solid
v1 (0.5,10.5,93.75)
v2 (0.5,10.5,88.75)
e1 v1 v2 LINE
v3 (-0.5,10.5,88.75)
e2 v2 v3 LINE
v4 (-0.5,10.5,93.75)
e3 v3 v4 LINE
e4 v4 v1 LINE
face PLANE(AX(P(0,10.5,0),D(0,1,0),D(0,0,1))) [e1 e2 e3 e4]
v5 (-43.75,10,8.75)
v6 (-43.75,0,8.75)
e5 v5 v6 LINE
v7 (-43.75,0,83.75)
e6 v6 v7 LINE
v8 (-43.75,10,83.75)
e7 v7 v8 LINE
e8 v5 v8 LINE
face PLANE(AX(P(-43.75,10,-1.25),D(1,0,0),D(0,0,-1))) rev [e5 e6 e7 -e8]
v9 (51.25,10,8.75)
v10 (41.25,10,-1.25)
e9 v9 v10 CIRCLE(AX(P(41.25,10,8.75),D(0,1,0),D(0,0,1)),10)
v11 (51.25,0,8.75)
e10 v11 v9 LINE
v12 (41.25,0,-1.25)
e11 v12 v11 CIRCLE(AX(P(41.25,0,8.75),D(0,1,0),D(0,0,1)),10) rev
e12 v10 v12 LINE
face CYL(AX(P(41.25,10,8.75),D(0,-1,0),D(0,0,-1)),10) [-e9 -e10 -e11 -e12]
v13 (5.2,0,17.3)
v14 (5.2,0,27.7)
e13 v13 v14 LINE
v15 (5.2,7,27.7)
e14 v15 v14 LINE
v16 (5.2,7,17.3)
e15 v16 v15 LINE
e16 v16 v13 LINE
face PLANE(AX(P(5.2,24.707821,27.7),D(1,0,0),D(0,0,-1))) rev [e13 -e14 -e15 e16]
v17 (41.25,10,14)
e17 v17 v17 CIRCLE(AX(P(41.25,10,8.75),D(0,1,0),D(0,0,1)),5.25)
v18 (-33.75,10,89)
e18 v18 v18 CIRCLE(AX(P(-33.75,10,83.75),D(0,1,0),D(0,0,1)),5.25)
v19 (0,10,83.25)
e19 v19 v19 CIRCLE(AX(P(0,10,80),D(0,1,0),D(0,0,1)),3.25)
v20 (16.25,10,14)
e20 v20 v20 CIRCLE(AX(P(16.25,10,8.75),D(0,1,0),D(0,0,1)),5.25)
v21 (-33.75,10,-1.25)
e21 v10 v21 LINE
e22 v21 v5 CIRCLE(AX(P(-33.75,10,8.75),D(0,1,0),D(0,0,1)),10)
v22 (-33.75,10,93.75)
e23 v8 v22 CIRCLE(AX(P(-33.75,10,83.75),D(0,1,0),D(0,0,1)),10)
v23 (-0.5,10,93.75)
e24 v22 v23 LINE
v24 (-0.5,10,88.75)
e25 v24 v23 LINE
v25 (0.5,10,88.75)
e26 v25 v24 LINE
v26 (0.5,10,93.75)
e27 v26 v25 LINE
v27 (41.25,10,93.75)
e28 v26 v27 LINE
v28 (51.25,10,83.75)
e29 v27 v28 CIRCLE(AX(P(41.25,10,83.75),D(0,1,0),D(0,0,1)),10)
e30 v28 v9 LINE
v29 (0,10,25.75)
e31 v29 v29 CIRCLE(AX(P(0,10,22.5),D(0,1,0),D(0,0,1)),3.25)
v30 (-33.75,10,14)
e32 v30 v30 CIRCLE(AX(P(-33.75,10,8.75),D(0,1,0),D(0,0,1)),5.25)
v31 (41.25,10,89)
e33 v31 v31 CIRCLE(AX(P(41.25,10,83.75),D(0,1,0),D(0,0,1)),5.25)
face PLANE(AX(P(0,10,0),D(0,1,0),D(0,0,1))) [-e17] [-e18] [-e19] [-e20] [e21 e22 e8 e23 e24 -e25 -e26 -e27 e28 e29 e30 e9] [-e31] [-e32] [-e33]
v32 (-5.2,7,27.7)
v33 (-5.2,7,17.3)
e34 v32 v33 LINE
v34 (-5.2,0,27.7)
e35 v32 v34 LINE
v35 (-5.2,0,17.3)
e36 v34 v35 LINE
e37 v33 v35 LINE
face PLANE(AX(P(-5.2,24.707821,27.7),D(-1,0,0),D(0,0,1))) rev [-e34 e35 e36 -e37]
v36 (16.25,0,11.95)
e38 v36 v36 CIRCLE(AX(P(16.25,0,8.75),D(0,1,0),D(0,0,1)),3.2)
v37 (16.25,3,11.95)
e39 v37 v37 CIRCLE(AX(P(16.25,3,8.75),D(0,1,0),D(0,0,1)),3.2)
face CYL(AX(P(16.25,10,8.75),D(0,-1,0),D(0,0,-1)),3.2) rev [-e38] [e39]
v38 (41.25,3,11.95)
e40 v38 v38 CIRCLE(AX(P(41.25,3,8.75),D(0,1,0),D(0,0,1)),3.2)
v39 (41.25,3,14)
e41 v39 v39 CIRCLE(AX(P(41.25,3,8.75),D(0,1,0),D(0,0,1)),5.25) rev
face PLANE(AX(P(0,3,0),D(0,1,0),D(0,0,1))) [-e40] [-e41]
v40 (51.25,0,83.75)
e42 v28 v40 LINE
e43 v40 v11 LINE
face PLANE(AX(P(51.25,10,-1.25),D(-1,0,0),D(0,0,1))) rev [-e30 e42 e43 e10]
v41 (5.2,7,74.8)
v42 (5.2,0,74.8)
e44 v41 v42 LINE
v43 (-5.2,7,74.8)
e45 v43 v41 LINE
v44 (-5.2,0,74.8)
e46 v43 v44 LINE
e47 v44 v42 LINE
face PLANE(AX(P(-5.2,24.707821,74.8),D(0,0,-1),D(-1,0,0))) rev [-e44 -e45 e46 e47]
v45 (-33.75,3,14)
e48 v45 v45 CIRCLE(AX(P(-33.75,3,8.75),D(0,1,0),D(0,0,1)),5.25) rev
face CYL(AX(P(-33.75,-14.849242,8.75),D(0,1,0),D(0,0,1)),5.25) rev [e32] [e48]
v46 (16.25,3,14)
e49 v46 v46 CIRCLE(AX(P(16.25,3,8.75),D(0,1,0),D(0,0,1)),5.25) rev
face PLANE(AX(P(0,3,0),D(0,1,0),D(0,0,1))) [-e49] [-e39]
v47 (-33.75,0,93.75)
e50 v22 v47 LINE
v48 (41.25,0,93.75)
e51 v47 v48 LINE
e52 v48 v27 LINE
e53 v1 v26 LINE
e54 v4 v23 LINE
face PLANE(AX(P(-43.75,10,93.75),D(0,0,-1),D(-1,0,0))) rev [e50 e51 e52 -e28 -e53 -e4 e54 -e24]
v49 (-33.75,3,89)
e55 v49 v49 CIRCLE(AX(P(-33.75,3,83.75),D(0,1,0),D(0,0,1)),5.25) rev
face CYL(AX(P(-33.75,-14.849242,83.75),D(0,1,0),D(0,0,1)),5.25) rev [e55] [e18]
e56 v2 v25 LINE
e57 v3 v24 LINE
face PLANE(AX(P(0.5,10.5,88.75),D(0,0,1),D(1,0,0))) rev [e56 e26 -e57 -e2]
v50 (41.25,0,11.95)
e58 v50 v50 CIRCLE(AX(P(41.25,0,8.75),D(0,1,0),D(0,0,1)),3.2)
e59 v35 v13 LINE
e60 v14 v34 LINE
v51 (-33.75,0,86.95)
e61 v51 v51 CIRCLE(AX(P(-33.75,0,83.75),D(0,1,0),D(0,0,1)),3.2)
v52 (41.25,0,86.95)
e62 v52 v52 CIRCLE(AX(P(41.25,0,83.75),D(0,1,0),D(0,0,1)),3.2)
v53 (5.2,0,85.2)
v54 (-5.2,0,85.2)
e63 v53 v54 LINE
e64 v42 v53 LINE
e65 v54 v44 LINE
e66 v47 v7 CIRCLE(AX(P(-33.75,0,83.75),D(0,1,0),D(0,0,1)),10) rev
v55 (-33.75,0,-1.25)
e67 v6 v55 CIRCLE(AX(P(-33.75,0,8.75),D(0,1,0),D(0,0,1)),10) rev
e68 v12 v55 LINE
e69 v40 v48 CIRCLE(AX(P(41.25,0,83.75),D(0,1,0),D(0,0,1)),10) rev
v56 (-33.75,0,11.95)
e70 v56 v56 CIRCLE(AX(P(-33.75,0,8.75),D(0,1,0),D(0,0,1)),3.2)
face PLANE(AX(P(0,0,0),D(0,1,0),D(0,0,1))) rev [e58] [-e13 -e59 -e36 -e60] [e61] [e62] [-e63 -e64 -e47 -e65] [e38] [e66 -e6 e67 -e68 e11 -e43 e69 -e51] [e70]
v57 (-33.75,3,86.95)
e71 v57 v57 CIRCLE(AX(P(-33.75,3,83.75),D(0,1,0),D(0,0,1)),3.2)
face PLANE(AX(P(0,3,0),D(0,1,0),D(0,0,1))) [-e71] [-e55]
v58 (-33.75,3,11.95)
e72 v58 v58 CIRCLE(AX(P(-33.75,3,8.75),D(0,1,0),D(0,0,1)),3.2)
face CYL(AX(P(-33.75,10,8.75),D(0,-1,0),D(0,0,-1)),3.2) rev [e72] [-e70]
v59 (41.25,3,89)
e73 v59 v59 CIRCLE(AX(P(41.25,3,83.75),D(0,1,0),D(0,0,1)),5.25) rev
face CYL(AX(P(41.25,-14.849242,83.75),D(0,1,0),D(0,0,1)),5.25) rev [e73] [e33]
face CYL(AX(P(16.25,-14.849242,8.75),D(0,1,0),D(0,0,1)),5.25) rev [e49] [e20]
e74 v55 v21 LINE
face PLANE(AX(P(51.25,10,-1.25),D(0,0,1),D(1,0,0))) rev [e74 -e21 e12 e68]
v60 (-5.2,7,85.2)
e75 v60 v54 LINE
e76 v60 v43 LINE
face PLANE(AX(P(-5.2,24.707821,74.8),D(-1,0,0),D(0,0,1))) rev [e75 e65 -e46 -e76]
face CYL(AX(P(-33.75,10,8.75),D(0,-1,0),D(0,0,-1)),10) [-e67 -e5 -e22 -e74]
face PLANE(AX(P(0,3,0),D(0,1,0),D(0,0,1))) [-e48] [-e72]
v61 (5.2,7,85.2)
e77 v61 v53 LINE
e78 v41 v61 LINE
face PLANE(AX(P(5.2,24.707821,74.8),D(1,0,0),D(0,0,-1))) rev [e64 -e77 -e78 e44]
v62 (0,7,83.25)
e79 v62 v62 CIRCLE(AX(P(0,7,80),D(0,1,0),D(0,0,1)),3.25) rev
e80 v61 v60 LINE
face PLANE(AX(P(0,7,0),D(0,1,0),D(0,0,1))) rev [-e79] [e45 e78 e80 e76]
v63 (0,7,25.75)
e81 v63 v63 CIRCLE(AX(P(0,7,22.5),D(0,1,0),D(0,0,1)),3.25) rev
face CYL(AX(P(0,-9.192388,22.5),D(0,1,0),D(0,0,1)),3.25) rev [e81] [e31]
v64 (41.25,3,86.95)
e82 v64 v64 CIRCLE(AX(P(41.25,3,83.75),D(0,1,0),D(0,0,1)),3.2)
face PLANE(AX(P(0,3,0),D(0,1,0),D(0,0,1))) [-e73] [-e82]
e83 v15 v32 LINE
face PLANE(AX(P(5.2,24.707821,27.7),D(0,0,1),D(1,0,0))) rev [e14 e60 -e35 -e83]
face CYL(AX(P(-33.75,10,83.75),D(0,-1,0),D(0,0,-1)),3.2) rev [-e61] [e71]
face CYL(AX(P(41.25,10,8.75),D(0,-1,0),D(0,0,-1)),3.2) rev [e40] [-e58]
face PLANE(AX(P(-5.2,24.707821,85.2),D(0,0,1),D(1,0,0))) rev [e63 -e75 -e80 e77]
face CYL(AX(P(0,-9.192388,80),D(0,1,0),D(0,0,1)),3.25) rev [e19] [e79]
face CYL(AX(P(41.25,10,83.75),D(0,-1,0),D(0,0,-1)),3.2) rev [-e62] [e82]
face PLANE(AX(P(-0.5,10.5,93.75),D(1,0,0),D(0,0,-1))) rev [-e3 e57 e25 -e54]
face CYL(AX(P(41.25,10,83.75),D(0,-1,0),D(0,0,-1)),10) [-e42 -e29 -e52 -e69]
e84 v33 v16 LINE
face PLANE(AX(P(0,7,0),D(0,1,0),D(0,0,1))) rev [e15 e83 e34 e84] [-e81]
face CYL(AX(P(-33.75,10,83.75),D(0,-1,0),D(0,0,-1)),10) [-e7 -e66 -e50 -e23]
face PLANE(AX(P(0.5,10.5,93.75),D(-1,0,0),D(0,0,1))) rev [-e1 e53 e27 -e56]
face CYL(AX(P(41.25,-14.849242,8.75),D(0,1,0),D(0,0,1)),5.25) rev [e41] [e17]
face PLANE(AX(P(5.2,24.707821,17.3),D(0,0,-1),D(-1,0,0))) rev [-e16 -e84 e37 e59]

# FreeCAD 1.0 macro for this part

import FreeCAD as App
import Part
import Sketcher

V = App.Vector
Q = App.Units.Quantity


def edges_at(feature, points):
    """Names of the edges that pass closest to the given points."""
    edges = feature.Shape.Edges
    near = lambda p: min(range(len(edges)), key=lambda i: edges[i].distToShape(Part.Vertex(*p))[0])
    return sorted({f"Edge{near(p) + 1}" for p in points})


def add_polygon(sketch, points):
    """Adds a closed chain of lines whose ends are joined by coincident constraints."""
    first, n = sketch.GeometryCount, len(points)
    for a, b in zip(points, points[1:] + points[:1]):
        sketch.addGeometry(Part.LineSegment(App.Vector(*a, 0), App.Vector(*b, 0)), False)
    for i in range(n):
        sketch.addConstraint(Sketcher.Constraint("Coincident", first + i, 2, first + (i + 1) % n, 1))

doc = App.newDocument("Part")
body = doc.addObject("PartDesign::Body", "Body")

# Sketch on XZ plane
sketch1 = body.newObject("Sketcher::SketchObject", "Sketch")
sketch1.AttachmentSupport = (doc.getObject("XZ_Plane"), [""])
sketch1.MapMode = "FlatFace"
add_polygon(sketch1, [(-43.8, -1.2), (-43.8, 93.8), (51.2, 93.8), (51.2, -1.2)])  # lines 0-3
sketch1.addGeometry(Part.Circle(V(-33.8, 83.8, 0), V(0, 0, 1), 3.2), False)  # 4
sketch1.addGeometry(Part.Circle(V(41.2, 83.8, 0), V(0, 0, 1), 3.2), False)  # 5
sketch1.addGeometry(Part.Circle(V(-33.8, 8.8, 0), V(0, 0, 1), 3.2), False)  # 6
sketch1.addGeometry(Part.Circle(V(16.2, 8.8, 0), V(0, 0, 1), 3.2), False)  # 7
sketch1.addGeometry(Part.Circle(V(41.2, 8.8, 0), V(0, 0, 1), 3.2), False)  # 8
sketch1.addConstraint([
    Sketcher.Constraint("Vertical", 0),
    Sketcher.Constraint("Horizontal", 1),
    Sketcher.Constraint("Vertical", 2),
    Sketcher.Constraint("Horizontal", 3),
    Sketcher.Constraint("Equal", 4, 5),
    Sketcher.Constraint("Equal", 5, 6),
    Sketcher.Constraint("Equal", 6, 7),
    Sketcher.Constraint("Equal", 7, 8),
    Sketcher.Constraint("Horizontal", 4, 3, 5, 3),
    Sketcher.Constraint("Horizontal", 6, 3, 7, 3),
    Sketcher.Constraint("Horizontal", 7, 3, 8, 3),
    Sketcher.Constraint("Vertical", 4, 3, 6, 3),
    Sketcher.Constraint("Vertical", 5, 3, 8, 3),
    Sketcher.Constraint("Equal", 3, 0),
    Sketcher.Constraint("Diameter", 4, Q("6.4 mm")),
    Sketcher.Constraint("DistanceX", 1, 1, 1, 2, Q("95 mm")),
    Sketcher.Constraint("DistanceX", 4, 3, 5, 3, Q("75 mm")),
    Sketcher.Constraint("DistanceY", 6, 3, 4, 3, Q("75 mm")),
    Sketcher.Constraint("DistanceX", 6, 3, 7, 3, Q("50 mm")),
    Sketcher.Constraint("DistanceX", 0, 2, 4, 3, Q("10 mm")),
    Sketcher.Constraint("DistanceY", 4, 3, 0, 2, Q("10 mm")),
    Sketcher.Constraint("DistanceX", 4, 3, -1, 1, Q("33.75 mm")),
    Sketcher.Constraint("DistanceY", -1, 1, 4, 3, Q("83.75 mm")),
])
pad1 = body.newObject("PartDesign::Pad", "Pad")
pad1.Profile = sketch1
pad1.Length = 10
pad1.Reversed = True

# Sketch on XZ plane
sketch2 = body.newObject("Sketcher::SketchObject", "Sketch001")
sketch2.AttachmentSupport = (doc.getObject("XZ_Plane"), [""])
sketch2.MapMode = "FlatFace"
sketch2.AttachmentOffset = App.Placement(V(0, 0, -10), App.Rotation())
sketch2.addGeometry([
    Part.Circle(V(16, 9, 0), V(0, 0, 1), 5),  # 0
    Part.Circle(V(-34, 9, 0), V(0, 0, 1), 5),  # 1
    Part.Circle(V(41, 9, 0), V(0, 0, 1), 5),  # 2
    Part.Circle(V(41, 84, 0), V(0, 0, 1), 5),  # 3
    Part.Circle(V(-34, 84, 0), V(0, 0, 1), 5),  # 4
], False)
sketch2.addConstraint([
    Sketcher.Constraint("Equal", 0, 1),
    Sketcher.Constraint("Equal", 1, 2),
    Sketcher.Constraint("Equal", 2, 3),
    Sketcher.Constraint("Equal", 3, 4),
    Sketcher.Constraint("Horizontal", 0, 3, 1, 3),
    Sketcher.Constraint("Horizontal", 1, 3, 2, 3),
    Sketcher.Constraint("Horizontal", 3, 3, 4, 3),
    Sketcher.Constraint("Vertical", 2, 3, 3, 3),
    Sketcher.Constraint("Vertical", 1, 3, 4, 3),
    Sketcher.Constraint("Diameter", 0, Q("10.5 mm")),
    Sketcher.Constraint("DistanceX", 1, 3, 0, 3, Q("50 mm")),
    Sketcher.Constraint("DistanceX", 0, 3, 2, 3, Q("25 mm")),
    Sketcher.Constraint("DistanceY", 2, 3, 3, 3, Q("75 mm")),
    Sketcher.Constraint("DistanceX", -1, 1, 0, 3, Q("16.25 mm")),
    Sketcher.Constraint("DistanceY", -1, 1, 0, 3, Q("8.75 mm")),
])
pocket1 = body.newObject("PartDesign::Pocket", "Pocket")
pocket1.Profile = sketch2
pocket1.Length = 7
pocket1.Reversed = True
doc.recompute()

fillet = body.newObject("PartDesign::Fillet", "Fillet")
fillet.Base = (pocket1, edges_at(pocket1, [
    (51.25, 5, -1.25),
    (51.25, 5, 93.75),
    (-43.75, 5, 93.75),
    (-43.75, 5, -1.25),
]))
fillet.Radius = 10

# Sketch on XZ plane
sketch3 = body.newObject("Sketcher::SketchObject", "Sketch002")
sketch3.AttachmentSupport = (doc.getObject("XZ_Plane"), [""])
sketch3.MapMode = "FlatFace"
sketch3.AttachmentOffset = App.Placement(V(0, 0, -10), App.Rotation())
sketch3.addGeometry([
    Part.Circle(V(0, 22.5, 0), V(0, 0, 1), 3.2),
    Part.Circle(V(0, 80, 0), V(0, 0, 1), 3.2),
], False)
sketch3.addConstraint([
    Sketcher.Constraint("Equal", 0, 1),
    Sketcher.Constraint("PointOnObject", 0, 3, -2),
    Sketcher.Constraint("PointOnObject", 1, 3, -2),
    Sketcher.Constraint("Diameter", 0, Q("6.5 mm")),
    Sketcher.Constraint("DistanceY", -1, 1, 1, 3, Q("80 mm")),
    Sketcher.Constraint("DistanceY", -1, 1, 0, 3, Q("22.5 mm")),
])
pocket2 = body.newObject("PartDesign::Pocket", "Pocket001")
pocket2.Profile = sketch3
pocket2.Length = 10
pocket2.Reversed = True

# Sketch on XZ plane
sketch4 = body.newObject("Sketcher::SketchObject", "Sketch003")
sketch4.AttachmentSupport = (doc.getObject("XZ_Plane"), [""])
sketch4.MapMode = "FlatFace"
add_polygon(sketch4, [(-5.2, 27.7), (-5.2, 17.3), (5.2, 17.3), (5.2, 27.7)])  # lines 0-3
sketch4.addGeometry(Part.Circle(V(0, 22.5, 0), V(0, 0, 1), 3.2), False)  # 4
add_polygon(sketch4, [(-5.2, 85.2), (-5.2, 74.8), (5.2, 74.8), (5.2, 85.2)])  # lines 5-8
sketch4.addGeometry(Part.Circle(V(0, 80, 0), V(0, 0, 1), 3.2), False)  # 9
sketch4.addConstraint([
    Sketcher.Constraint("Vertical", 0),
    Sketcher.Constraint("Horizontal", 1),
    Sketcher.Constraint("Vertical", 2),
    Sketcher.Constraint("Horizontal", 3),
    Sketcher.Constraint("Vertical", 5),
    Sketcher.Constraint("Horizontal", 6),
    Sketcher.Constraint("Vertical", 7),
    Sketcher.Constraint("Horizontal", 8),
    Sketcher.Constraint("Equal", 4, 9),
    Sketcher.Constraint("PointOnObject", 4, 3, -2),
    Sketcher.Constraint("PointOnObject", 9, 3, -2),
    Sketcher.Constraint("Vertical", 3, 2, 5, 2),
    Sketcher.Constraint("Vertical", 2, 2, 6, 2),
    Sketcher.Constraint("Equal", 8, 0),
    Sketcher.Constraint("Equal", 2, 5),
    Sketcher.Constraint("Diameter", 4, Q("6.5 mm")),
    Sketcher.Constraint("DistanceX", 1, 1, 1, 2, Q("10.4 mm")),
    Sketcher.Constraint("DistanceY", -1, 1, 9, 3, Q("80 mm")),
    Sketcher.Constraint("DistanceY", -1, 1, 4, 3, Q("22.5 mm")),
    Sketcher.Constraint("DistanceX", 0, 2, -1, 1, Q("5.2 mm")),
    Sketcher.Constraint("DistanceY", -1, 1, 0, 2, Q("17.3 mm")),
    Sketcher.Constraint("DistanceY", -1, 1, 5, 2, Q("74.8 mm")),
])
pocket3 = body.newObject("PartDesign::Pocket", "Pocket002")
pocket3.Profile = sketch4
pocket3.Length = 7

# Sketch on XZ plane
sketch5 = body.newObject("Sketcher::SketchObject", "Sketch004")
sketch5.AttachmentSupport = (doc.getObject("XZ_Plane"), [""])
sketch5.MapMode = "FlatFace"
sketch5.AttachmentOffset = App.Placement(V(0, 0, -10), App.Rotation())
add_polygon(sketch5, [(-0.5, 88.8), (-0.5, 93.8), (0.5, 93.8), (0.5, 88.8)])  # lines 0-3
sketch5.addConstraint([
    Sketcher.Constraint("Vertical", 0),
    Sketcher.Constraint("Horizontal", 1),
    Sketcher.Constraint("Vertical", 2),
    Sketcher.Constraint("Horizontal", 3),
    Sketcher.Constraint("DistanceX", 1, 1, 1, 2, Q("1 mm")),
    Sketcher.Constraint("DistanceY", 0, 1, 0, 2, Q("5 mm")),
    Sketcher.Constraint("DistanceX", 0, 2, -1, 1, Q("0.5 mm")),
    Sketcher.Constraint("DistanceY", -1, 1, 0, 2, Q("93.75 mm")),
])
pad2 = body.newObject("PartDesign::Pad", "Pad001")
pad2.Profile = sketch5
pad2.Length = 0.5
pad2.Reversed = True

doc.recompute()
